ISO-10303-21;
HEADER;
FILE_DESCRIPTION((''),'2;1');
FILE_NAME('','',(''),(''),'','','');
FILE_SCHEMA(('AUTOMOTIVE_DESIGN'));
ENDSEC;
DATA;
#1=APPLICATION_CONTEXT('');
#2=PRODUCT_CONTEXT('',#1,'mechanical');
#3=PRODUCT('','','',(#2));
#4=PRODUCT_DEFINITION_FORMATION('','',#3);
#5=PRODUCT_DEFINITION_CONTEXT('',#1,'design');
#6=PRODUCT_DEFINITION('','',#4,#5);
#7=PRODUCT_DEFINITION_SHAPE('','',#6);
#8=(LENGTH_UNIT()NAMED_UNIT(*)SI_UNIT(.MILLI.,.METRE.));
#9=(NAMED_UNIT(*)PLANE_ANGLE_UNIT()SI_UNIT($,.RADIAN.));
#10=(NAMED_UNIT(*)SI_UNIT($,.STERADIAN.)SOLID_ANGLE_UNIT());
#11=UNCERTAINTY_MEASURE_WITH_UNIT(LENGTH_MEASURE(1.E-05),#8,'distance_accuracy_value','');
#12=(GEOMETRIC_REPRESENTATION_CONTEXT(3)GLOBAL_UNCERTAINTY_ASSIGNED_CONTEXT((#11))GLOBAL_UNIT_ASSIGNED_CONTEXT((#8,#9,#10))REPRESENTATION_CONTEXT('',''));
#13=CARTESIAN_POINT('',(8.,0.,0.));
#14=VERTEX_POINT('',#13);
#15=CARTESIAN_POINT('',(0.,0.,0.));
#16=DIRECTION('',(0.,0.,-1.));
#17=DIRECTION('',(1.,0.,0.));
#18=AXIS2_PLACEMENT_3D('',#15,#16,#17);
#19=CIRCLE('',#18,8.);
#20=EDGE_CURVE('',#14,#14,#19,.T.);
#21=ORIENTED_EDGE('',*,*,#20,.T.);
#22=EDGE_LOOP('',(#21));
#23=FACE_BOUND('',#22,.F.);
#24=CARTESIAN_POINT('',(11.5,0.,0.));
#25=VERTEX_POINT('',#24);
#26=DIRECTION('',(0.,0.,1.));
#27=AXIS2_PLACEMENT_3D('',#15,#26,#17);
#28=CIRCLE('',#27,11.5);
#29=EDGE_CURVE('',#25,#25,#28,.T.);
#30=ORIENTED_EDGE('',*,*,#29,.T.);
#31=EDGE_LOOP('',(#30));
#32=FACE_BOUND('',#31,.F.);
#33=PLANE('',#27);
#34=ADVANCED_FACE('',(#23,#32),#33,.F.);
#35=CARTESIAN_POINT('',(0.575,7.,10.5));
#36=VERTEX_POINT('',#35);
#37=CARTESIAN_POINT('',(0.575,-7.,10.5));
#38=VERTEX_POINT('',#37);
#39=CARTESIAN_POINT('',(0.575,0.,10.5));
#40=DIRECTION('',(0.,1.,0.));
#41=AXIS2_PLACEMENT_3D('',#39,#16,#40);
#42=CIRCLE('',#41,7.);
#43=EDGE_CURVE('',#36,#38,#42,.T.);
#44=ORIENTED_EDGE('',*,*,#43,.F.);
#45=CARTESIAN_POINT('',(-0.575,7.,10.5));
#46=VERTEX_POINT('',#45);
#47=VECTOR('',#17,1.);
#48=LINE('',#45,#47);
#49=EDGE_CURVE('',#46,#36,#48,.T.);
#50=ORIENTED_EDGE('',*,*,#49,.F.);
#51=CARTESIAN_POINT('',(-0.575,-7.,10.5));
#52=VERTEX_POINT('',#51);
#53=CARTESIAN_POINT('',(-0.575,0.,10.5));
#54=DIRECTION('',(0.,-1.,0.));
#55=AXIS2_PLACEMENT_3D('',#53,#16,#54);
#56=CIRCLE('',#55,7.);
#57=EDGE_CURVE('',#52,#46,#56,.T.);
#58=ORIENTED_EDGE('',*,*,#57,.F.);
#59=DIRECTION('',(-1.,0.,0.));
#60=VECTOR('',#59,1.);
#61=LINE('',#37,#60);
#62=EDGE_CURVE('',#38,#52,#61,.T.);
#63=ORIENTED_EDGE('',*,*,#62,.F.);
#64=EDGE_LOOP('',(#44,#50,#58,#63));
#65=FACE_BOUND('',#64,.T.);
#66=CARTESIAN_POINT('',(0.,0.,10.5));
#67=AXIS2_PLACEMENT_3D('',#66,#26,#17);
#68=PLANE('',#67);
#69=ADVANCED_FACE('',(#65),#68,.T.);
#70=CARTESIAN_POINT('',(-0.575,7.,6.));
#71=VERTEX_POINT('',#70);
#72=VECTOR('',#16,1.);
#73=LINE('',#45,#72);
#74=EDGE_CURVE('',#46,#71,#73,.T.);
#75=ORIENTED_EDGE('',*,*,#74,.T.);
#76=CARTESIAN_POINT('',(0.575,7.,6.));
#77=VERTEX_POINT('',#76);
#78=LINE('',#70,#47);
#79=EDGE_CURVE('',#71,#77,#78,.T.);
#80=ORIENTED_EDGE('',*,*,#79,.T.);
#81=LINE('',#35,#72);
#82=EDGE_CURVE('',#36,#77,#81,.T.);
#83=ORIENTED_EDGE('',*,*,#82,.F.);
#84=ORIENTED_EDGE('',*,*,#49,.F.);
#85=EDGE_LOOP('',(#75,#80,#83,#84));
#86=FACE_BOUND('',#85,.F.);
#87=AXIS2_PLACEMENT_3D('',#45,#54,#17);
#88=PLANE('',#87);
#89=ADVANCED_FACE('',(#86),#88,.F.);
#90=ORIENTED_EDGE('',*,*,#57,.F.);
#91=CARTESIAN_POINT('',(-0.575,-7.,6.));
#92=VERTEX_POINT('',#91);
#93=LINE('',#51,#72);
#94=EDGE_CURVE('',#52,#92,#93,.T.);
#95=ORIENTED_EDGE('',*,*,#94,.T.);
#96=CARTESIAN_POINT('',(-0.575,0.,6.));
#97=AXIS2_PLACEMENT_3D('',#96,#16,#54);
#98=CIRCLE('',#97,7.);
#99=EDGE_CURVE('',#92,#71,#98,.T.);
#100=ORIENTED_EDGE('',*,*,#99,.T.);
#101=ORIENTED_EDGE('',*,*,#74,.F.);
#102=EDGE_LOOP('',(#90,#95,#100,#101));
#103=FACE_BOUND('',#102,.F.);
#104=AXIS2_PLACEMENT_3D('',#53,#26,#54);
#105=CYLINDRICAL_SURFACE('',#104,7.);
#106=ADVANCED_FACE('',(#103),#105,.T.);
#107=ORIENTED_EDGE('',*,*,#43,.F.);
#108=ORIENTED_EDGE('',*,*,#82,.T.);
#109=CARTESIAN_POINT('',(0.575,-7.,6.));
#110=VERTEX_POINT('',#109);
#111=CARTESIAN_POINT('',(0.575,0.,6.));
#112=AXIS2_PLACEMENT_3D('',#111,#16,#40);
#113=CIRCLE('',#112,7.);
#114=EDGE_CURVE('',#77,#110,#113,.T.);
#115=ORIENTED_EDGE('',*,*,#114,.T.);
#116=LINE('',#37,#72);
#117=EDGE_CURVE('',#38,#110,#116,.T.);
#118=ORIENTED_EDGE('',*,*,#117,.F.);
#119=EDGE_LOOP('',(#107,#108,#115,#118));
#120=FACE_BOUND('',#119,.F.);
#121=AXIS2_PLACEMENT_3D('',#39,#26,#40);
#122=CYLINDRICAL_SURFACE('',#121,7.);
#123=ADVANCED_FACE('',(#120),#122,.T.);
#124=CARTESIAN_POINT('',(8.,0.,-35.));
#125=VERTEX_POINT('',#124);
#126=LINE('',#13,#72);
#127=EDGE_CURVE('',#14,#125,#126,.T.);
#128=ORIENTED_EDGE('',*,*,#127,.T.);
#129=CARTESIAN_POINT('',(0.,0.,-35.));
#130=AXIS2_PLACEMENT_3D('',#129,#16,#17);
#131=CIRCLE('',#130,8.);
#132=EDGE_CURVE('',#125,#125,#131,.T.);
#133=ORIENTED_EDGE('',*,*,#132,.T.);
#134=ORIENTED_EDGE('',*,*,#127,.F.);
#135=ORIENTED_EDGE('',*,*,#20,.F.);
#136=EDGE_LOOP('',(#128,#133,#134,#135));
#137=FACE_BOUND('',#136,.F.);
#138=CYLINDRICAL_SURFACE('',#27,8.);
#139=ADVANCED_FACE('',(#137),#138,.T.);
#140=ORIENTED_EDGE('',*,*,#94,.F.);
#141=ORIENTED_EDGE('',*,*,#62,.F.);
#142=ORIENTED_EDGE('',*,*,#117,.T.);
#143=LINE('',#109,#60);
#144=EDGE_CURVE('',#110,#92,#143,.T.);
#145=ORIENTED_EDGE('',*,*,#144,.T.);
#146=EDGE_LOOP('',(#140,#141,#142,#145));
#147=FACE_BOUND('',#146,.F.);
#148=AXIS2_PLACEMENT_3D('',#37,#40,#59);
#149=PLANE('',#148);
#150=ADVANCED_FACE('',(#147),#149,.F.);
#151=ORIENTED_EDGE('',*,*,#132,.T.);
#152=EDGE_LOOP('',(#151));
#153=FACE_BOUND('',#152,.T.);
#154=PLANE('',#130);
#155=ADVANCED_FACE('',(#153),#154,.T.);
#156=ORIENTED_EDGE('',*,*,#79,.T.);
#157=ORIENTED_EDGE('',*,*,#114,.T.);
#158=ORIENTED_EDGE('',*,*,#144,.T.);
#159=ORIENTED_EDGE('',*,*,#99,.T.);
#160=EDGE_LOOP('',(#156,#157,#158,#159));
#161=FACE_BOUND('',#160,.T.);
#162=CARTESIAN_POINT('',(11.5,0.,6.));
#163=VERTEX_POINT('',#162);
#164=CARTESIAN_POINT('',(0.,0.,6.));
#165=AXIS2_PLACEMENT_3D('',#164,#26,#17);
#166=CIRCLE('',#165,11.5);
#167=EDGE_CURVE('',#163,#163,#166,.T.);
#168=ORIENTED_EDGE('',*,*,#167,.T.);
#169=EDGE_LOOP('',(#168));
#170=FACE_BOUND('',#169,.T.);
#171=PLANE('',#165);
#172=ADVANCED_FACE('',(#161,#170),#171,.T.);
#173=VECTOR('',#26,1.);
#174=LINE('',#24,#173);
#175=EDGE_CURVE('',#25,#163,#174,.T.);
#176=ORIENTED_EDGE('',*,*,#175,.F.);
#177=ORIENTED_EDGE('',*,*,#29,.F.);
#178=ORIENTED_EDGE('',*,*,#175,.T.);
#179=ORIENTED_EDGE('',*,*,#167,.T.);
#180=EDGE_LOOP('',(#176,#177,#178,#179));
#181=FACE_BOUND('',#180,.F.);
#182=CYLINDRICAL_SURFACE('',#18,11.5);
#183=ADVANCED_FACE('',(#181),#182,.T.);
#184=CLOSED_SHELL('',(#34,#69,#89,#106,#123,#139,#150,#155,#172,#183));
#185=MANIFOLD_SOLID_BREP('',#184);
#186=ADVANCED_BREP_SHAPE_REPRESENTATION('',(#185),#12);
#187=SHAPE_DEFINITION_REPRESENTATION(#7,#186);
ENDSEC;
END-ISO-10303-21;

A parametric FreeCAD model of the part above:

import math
import FreeCAD as App
import Part
import Sketcher
Q = App.Units.Quantity

doc = App.newDocument("Part")
body = doc.addObject("PartDesign::Body", "Body")

# Sketch on XY plane
sketch1 = body.newObject("Sketcher::SketchObject", "Sketch")
sketch1.AttachmentSupport = (doc.getObject("XY_Plane"), [""])
sketch1.MapMode = "FlatFace"
sketch1.addGeometry(Part.Circle(App.Vector(0, 0, 0), App.Vector(0, 0, 1), 12), False)
sketch1.addConstraint([
    Sketcher.Constraint("Coincident", 0, 3, -1, 1),
    Sketcher.Constraint("Diameter", 0, Q("23 mm")),
])
pad1 = body.newObject("PartDesign::Pad", "Pad")
pad1.Profile = sketch1
pad1.Length = 10.5

# Sketch on XY plane
sketch2 = body.newObject("Sketcher::SketchObject", "Sketch001")
sketch2.AttachmentSupport = (doc.getObject("XY_Plane"), [""])
sketch2.MapMode = "FlatFace"
sketch2.addGeometry(Part.Circle(App.Vector(0, 0, 0), App.Vector(0, 0, 1), 8), False)
sketch2.addConstraint([
    Sketcher.Constraint("Coincident", 0, 3, -1, 1),
    Sketcher.Constraint("Diameter", 0, Q("16 mm")),
])
pad2 = body.newObject("PartDesign::Pad", "Pad001")
pad2.Profile = sketch2
pad2.Length = 35
pad2.Reversed = True

# Sketch on XY plane
sketch3 = body.newObject("Sketcher::SketchObject", "Sketch002")
sketch3.AttachmentSupport = (doc.getObject("XY_Plane"), [""])
sketch3.MapMode = "FlatFace"
sketch3.AttachmentOffset = App.Placement(App.Vector(0, 0, 10.5), App.Rotation())
sketch3.addGeometry([
    Part.Circle(App.Vector(0, 0, 0), App.Vector(0, 0, 1), 11.5),  # 0
    Part.LineSegment(App.Vector(-0.6, 7, 0), App.Vector(0.6, 7, 0)),  # 1
    Part.ArcOfCircle(Part.Circle(App.Vector(0.6, 0, 0), App.Vector(0, 0, 1), 7), math.radians(-90), math.radians(90)),  # 2
    Part.LineSegment(App.Vector(0.6, -7, 0), App.Vector(-0.6, -7, 0)),  # 3
    Part.ArcOfCircle(Part.Circle(App.Vector(-0.6, 0, 0), App.Vector(0, 0, 1), 7), math.radians(90), math.radians(270)),  # 4
], False)
sketch3.addConstraint([
    Sketcher.Constraint("Tangent", 1, 2, 2, 2),
    Sketcher.Constraint("Tangent", 2, 1, 3, 1),
    Sketcher.Constraint("Tangent", 3, 2, 4, 2),
    Sketcher.Constraint("Tangent", 4, 1, 1, 1),
    Sketcher.Constraint("Horizontal", 1),
    Sketcher.Constraint("Horizontal", 3),
    Sketcher.Constraint("Coincident", 0, 3, -1, 1),
    Sketcher.Constraint("Symmetric", 2, 3, 4, 3, -1, 1),
    Sketcher.Constraint("Diameter", 0, Q("23 mm")),
    Sketcher.Constraint("Radius", 2, Q("7 mm")),
    Sketcher.Constraint("DistanceX", 1, 1, 1, 2, Q("1.15 mm")),
])
pocket1 = body.newObject("PartDesign::Pocket", "Pocket")
pocket1.Profile = sketch3
pocket1.Length = 4.5

doc.recompute()
